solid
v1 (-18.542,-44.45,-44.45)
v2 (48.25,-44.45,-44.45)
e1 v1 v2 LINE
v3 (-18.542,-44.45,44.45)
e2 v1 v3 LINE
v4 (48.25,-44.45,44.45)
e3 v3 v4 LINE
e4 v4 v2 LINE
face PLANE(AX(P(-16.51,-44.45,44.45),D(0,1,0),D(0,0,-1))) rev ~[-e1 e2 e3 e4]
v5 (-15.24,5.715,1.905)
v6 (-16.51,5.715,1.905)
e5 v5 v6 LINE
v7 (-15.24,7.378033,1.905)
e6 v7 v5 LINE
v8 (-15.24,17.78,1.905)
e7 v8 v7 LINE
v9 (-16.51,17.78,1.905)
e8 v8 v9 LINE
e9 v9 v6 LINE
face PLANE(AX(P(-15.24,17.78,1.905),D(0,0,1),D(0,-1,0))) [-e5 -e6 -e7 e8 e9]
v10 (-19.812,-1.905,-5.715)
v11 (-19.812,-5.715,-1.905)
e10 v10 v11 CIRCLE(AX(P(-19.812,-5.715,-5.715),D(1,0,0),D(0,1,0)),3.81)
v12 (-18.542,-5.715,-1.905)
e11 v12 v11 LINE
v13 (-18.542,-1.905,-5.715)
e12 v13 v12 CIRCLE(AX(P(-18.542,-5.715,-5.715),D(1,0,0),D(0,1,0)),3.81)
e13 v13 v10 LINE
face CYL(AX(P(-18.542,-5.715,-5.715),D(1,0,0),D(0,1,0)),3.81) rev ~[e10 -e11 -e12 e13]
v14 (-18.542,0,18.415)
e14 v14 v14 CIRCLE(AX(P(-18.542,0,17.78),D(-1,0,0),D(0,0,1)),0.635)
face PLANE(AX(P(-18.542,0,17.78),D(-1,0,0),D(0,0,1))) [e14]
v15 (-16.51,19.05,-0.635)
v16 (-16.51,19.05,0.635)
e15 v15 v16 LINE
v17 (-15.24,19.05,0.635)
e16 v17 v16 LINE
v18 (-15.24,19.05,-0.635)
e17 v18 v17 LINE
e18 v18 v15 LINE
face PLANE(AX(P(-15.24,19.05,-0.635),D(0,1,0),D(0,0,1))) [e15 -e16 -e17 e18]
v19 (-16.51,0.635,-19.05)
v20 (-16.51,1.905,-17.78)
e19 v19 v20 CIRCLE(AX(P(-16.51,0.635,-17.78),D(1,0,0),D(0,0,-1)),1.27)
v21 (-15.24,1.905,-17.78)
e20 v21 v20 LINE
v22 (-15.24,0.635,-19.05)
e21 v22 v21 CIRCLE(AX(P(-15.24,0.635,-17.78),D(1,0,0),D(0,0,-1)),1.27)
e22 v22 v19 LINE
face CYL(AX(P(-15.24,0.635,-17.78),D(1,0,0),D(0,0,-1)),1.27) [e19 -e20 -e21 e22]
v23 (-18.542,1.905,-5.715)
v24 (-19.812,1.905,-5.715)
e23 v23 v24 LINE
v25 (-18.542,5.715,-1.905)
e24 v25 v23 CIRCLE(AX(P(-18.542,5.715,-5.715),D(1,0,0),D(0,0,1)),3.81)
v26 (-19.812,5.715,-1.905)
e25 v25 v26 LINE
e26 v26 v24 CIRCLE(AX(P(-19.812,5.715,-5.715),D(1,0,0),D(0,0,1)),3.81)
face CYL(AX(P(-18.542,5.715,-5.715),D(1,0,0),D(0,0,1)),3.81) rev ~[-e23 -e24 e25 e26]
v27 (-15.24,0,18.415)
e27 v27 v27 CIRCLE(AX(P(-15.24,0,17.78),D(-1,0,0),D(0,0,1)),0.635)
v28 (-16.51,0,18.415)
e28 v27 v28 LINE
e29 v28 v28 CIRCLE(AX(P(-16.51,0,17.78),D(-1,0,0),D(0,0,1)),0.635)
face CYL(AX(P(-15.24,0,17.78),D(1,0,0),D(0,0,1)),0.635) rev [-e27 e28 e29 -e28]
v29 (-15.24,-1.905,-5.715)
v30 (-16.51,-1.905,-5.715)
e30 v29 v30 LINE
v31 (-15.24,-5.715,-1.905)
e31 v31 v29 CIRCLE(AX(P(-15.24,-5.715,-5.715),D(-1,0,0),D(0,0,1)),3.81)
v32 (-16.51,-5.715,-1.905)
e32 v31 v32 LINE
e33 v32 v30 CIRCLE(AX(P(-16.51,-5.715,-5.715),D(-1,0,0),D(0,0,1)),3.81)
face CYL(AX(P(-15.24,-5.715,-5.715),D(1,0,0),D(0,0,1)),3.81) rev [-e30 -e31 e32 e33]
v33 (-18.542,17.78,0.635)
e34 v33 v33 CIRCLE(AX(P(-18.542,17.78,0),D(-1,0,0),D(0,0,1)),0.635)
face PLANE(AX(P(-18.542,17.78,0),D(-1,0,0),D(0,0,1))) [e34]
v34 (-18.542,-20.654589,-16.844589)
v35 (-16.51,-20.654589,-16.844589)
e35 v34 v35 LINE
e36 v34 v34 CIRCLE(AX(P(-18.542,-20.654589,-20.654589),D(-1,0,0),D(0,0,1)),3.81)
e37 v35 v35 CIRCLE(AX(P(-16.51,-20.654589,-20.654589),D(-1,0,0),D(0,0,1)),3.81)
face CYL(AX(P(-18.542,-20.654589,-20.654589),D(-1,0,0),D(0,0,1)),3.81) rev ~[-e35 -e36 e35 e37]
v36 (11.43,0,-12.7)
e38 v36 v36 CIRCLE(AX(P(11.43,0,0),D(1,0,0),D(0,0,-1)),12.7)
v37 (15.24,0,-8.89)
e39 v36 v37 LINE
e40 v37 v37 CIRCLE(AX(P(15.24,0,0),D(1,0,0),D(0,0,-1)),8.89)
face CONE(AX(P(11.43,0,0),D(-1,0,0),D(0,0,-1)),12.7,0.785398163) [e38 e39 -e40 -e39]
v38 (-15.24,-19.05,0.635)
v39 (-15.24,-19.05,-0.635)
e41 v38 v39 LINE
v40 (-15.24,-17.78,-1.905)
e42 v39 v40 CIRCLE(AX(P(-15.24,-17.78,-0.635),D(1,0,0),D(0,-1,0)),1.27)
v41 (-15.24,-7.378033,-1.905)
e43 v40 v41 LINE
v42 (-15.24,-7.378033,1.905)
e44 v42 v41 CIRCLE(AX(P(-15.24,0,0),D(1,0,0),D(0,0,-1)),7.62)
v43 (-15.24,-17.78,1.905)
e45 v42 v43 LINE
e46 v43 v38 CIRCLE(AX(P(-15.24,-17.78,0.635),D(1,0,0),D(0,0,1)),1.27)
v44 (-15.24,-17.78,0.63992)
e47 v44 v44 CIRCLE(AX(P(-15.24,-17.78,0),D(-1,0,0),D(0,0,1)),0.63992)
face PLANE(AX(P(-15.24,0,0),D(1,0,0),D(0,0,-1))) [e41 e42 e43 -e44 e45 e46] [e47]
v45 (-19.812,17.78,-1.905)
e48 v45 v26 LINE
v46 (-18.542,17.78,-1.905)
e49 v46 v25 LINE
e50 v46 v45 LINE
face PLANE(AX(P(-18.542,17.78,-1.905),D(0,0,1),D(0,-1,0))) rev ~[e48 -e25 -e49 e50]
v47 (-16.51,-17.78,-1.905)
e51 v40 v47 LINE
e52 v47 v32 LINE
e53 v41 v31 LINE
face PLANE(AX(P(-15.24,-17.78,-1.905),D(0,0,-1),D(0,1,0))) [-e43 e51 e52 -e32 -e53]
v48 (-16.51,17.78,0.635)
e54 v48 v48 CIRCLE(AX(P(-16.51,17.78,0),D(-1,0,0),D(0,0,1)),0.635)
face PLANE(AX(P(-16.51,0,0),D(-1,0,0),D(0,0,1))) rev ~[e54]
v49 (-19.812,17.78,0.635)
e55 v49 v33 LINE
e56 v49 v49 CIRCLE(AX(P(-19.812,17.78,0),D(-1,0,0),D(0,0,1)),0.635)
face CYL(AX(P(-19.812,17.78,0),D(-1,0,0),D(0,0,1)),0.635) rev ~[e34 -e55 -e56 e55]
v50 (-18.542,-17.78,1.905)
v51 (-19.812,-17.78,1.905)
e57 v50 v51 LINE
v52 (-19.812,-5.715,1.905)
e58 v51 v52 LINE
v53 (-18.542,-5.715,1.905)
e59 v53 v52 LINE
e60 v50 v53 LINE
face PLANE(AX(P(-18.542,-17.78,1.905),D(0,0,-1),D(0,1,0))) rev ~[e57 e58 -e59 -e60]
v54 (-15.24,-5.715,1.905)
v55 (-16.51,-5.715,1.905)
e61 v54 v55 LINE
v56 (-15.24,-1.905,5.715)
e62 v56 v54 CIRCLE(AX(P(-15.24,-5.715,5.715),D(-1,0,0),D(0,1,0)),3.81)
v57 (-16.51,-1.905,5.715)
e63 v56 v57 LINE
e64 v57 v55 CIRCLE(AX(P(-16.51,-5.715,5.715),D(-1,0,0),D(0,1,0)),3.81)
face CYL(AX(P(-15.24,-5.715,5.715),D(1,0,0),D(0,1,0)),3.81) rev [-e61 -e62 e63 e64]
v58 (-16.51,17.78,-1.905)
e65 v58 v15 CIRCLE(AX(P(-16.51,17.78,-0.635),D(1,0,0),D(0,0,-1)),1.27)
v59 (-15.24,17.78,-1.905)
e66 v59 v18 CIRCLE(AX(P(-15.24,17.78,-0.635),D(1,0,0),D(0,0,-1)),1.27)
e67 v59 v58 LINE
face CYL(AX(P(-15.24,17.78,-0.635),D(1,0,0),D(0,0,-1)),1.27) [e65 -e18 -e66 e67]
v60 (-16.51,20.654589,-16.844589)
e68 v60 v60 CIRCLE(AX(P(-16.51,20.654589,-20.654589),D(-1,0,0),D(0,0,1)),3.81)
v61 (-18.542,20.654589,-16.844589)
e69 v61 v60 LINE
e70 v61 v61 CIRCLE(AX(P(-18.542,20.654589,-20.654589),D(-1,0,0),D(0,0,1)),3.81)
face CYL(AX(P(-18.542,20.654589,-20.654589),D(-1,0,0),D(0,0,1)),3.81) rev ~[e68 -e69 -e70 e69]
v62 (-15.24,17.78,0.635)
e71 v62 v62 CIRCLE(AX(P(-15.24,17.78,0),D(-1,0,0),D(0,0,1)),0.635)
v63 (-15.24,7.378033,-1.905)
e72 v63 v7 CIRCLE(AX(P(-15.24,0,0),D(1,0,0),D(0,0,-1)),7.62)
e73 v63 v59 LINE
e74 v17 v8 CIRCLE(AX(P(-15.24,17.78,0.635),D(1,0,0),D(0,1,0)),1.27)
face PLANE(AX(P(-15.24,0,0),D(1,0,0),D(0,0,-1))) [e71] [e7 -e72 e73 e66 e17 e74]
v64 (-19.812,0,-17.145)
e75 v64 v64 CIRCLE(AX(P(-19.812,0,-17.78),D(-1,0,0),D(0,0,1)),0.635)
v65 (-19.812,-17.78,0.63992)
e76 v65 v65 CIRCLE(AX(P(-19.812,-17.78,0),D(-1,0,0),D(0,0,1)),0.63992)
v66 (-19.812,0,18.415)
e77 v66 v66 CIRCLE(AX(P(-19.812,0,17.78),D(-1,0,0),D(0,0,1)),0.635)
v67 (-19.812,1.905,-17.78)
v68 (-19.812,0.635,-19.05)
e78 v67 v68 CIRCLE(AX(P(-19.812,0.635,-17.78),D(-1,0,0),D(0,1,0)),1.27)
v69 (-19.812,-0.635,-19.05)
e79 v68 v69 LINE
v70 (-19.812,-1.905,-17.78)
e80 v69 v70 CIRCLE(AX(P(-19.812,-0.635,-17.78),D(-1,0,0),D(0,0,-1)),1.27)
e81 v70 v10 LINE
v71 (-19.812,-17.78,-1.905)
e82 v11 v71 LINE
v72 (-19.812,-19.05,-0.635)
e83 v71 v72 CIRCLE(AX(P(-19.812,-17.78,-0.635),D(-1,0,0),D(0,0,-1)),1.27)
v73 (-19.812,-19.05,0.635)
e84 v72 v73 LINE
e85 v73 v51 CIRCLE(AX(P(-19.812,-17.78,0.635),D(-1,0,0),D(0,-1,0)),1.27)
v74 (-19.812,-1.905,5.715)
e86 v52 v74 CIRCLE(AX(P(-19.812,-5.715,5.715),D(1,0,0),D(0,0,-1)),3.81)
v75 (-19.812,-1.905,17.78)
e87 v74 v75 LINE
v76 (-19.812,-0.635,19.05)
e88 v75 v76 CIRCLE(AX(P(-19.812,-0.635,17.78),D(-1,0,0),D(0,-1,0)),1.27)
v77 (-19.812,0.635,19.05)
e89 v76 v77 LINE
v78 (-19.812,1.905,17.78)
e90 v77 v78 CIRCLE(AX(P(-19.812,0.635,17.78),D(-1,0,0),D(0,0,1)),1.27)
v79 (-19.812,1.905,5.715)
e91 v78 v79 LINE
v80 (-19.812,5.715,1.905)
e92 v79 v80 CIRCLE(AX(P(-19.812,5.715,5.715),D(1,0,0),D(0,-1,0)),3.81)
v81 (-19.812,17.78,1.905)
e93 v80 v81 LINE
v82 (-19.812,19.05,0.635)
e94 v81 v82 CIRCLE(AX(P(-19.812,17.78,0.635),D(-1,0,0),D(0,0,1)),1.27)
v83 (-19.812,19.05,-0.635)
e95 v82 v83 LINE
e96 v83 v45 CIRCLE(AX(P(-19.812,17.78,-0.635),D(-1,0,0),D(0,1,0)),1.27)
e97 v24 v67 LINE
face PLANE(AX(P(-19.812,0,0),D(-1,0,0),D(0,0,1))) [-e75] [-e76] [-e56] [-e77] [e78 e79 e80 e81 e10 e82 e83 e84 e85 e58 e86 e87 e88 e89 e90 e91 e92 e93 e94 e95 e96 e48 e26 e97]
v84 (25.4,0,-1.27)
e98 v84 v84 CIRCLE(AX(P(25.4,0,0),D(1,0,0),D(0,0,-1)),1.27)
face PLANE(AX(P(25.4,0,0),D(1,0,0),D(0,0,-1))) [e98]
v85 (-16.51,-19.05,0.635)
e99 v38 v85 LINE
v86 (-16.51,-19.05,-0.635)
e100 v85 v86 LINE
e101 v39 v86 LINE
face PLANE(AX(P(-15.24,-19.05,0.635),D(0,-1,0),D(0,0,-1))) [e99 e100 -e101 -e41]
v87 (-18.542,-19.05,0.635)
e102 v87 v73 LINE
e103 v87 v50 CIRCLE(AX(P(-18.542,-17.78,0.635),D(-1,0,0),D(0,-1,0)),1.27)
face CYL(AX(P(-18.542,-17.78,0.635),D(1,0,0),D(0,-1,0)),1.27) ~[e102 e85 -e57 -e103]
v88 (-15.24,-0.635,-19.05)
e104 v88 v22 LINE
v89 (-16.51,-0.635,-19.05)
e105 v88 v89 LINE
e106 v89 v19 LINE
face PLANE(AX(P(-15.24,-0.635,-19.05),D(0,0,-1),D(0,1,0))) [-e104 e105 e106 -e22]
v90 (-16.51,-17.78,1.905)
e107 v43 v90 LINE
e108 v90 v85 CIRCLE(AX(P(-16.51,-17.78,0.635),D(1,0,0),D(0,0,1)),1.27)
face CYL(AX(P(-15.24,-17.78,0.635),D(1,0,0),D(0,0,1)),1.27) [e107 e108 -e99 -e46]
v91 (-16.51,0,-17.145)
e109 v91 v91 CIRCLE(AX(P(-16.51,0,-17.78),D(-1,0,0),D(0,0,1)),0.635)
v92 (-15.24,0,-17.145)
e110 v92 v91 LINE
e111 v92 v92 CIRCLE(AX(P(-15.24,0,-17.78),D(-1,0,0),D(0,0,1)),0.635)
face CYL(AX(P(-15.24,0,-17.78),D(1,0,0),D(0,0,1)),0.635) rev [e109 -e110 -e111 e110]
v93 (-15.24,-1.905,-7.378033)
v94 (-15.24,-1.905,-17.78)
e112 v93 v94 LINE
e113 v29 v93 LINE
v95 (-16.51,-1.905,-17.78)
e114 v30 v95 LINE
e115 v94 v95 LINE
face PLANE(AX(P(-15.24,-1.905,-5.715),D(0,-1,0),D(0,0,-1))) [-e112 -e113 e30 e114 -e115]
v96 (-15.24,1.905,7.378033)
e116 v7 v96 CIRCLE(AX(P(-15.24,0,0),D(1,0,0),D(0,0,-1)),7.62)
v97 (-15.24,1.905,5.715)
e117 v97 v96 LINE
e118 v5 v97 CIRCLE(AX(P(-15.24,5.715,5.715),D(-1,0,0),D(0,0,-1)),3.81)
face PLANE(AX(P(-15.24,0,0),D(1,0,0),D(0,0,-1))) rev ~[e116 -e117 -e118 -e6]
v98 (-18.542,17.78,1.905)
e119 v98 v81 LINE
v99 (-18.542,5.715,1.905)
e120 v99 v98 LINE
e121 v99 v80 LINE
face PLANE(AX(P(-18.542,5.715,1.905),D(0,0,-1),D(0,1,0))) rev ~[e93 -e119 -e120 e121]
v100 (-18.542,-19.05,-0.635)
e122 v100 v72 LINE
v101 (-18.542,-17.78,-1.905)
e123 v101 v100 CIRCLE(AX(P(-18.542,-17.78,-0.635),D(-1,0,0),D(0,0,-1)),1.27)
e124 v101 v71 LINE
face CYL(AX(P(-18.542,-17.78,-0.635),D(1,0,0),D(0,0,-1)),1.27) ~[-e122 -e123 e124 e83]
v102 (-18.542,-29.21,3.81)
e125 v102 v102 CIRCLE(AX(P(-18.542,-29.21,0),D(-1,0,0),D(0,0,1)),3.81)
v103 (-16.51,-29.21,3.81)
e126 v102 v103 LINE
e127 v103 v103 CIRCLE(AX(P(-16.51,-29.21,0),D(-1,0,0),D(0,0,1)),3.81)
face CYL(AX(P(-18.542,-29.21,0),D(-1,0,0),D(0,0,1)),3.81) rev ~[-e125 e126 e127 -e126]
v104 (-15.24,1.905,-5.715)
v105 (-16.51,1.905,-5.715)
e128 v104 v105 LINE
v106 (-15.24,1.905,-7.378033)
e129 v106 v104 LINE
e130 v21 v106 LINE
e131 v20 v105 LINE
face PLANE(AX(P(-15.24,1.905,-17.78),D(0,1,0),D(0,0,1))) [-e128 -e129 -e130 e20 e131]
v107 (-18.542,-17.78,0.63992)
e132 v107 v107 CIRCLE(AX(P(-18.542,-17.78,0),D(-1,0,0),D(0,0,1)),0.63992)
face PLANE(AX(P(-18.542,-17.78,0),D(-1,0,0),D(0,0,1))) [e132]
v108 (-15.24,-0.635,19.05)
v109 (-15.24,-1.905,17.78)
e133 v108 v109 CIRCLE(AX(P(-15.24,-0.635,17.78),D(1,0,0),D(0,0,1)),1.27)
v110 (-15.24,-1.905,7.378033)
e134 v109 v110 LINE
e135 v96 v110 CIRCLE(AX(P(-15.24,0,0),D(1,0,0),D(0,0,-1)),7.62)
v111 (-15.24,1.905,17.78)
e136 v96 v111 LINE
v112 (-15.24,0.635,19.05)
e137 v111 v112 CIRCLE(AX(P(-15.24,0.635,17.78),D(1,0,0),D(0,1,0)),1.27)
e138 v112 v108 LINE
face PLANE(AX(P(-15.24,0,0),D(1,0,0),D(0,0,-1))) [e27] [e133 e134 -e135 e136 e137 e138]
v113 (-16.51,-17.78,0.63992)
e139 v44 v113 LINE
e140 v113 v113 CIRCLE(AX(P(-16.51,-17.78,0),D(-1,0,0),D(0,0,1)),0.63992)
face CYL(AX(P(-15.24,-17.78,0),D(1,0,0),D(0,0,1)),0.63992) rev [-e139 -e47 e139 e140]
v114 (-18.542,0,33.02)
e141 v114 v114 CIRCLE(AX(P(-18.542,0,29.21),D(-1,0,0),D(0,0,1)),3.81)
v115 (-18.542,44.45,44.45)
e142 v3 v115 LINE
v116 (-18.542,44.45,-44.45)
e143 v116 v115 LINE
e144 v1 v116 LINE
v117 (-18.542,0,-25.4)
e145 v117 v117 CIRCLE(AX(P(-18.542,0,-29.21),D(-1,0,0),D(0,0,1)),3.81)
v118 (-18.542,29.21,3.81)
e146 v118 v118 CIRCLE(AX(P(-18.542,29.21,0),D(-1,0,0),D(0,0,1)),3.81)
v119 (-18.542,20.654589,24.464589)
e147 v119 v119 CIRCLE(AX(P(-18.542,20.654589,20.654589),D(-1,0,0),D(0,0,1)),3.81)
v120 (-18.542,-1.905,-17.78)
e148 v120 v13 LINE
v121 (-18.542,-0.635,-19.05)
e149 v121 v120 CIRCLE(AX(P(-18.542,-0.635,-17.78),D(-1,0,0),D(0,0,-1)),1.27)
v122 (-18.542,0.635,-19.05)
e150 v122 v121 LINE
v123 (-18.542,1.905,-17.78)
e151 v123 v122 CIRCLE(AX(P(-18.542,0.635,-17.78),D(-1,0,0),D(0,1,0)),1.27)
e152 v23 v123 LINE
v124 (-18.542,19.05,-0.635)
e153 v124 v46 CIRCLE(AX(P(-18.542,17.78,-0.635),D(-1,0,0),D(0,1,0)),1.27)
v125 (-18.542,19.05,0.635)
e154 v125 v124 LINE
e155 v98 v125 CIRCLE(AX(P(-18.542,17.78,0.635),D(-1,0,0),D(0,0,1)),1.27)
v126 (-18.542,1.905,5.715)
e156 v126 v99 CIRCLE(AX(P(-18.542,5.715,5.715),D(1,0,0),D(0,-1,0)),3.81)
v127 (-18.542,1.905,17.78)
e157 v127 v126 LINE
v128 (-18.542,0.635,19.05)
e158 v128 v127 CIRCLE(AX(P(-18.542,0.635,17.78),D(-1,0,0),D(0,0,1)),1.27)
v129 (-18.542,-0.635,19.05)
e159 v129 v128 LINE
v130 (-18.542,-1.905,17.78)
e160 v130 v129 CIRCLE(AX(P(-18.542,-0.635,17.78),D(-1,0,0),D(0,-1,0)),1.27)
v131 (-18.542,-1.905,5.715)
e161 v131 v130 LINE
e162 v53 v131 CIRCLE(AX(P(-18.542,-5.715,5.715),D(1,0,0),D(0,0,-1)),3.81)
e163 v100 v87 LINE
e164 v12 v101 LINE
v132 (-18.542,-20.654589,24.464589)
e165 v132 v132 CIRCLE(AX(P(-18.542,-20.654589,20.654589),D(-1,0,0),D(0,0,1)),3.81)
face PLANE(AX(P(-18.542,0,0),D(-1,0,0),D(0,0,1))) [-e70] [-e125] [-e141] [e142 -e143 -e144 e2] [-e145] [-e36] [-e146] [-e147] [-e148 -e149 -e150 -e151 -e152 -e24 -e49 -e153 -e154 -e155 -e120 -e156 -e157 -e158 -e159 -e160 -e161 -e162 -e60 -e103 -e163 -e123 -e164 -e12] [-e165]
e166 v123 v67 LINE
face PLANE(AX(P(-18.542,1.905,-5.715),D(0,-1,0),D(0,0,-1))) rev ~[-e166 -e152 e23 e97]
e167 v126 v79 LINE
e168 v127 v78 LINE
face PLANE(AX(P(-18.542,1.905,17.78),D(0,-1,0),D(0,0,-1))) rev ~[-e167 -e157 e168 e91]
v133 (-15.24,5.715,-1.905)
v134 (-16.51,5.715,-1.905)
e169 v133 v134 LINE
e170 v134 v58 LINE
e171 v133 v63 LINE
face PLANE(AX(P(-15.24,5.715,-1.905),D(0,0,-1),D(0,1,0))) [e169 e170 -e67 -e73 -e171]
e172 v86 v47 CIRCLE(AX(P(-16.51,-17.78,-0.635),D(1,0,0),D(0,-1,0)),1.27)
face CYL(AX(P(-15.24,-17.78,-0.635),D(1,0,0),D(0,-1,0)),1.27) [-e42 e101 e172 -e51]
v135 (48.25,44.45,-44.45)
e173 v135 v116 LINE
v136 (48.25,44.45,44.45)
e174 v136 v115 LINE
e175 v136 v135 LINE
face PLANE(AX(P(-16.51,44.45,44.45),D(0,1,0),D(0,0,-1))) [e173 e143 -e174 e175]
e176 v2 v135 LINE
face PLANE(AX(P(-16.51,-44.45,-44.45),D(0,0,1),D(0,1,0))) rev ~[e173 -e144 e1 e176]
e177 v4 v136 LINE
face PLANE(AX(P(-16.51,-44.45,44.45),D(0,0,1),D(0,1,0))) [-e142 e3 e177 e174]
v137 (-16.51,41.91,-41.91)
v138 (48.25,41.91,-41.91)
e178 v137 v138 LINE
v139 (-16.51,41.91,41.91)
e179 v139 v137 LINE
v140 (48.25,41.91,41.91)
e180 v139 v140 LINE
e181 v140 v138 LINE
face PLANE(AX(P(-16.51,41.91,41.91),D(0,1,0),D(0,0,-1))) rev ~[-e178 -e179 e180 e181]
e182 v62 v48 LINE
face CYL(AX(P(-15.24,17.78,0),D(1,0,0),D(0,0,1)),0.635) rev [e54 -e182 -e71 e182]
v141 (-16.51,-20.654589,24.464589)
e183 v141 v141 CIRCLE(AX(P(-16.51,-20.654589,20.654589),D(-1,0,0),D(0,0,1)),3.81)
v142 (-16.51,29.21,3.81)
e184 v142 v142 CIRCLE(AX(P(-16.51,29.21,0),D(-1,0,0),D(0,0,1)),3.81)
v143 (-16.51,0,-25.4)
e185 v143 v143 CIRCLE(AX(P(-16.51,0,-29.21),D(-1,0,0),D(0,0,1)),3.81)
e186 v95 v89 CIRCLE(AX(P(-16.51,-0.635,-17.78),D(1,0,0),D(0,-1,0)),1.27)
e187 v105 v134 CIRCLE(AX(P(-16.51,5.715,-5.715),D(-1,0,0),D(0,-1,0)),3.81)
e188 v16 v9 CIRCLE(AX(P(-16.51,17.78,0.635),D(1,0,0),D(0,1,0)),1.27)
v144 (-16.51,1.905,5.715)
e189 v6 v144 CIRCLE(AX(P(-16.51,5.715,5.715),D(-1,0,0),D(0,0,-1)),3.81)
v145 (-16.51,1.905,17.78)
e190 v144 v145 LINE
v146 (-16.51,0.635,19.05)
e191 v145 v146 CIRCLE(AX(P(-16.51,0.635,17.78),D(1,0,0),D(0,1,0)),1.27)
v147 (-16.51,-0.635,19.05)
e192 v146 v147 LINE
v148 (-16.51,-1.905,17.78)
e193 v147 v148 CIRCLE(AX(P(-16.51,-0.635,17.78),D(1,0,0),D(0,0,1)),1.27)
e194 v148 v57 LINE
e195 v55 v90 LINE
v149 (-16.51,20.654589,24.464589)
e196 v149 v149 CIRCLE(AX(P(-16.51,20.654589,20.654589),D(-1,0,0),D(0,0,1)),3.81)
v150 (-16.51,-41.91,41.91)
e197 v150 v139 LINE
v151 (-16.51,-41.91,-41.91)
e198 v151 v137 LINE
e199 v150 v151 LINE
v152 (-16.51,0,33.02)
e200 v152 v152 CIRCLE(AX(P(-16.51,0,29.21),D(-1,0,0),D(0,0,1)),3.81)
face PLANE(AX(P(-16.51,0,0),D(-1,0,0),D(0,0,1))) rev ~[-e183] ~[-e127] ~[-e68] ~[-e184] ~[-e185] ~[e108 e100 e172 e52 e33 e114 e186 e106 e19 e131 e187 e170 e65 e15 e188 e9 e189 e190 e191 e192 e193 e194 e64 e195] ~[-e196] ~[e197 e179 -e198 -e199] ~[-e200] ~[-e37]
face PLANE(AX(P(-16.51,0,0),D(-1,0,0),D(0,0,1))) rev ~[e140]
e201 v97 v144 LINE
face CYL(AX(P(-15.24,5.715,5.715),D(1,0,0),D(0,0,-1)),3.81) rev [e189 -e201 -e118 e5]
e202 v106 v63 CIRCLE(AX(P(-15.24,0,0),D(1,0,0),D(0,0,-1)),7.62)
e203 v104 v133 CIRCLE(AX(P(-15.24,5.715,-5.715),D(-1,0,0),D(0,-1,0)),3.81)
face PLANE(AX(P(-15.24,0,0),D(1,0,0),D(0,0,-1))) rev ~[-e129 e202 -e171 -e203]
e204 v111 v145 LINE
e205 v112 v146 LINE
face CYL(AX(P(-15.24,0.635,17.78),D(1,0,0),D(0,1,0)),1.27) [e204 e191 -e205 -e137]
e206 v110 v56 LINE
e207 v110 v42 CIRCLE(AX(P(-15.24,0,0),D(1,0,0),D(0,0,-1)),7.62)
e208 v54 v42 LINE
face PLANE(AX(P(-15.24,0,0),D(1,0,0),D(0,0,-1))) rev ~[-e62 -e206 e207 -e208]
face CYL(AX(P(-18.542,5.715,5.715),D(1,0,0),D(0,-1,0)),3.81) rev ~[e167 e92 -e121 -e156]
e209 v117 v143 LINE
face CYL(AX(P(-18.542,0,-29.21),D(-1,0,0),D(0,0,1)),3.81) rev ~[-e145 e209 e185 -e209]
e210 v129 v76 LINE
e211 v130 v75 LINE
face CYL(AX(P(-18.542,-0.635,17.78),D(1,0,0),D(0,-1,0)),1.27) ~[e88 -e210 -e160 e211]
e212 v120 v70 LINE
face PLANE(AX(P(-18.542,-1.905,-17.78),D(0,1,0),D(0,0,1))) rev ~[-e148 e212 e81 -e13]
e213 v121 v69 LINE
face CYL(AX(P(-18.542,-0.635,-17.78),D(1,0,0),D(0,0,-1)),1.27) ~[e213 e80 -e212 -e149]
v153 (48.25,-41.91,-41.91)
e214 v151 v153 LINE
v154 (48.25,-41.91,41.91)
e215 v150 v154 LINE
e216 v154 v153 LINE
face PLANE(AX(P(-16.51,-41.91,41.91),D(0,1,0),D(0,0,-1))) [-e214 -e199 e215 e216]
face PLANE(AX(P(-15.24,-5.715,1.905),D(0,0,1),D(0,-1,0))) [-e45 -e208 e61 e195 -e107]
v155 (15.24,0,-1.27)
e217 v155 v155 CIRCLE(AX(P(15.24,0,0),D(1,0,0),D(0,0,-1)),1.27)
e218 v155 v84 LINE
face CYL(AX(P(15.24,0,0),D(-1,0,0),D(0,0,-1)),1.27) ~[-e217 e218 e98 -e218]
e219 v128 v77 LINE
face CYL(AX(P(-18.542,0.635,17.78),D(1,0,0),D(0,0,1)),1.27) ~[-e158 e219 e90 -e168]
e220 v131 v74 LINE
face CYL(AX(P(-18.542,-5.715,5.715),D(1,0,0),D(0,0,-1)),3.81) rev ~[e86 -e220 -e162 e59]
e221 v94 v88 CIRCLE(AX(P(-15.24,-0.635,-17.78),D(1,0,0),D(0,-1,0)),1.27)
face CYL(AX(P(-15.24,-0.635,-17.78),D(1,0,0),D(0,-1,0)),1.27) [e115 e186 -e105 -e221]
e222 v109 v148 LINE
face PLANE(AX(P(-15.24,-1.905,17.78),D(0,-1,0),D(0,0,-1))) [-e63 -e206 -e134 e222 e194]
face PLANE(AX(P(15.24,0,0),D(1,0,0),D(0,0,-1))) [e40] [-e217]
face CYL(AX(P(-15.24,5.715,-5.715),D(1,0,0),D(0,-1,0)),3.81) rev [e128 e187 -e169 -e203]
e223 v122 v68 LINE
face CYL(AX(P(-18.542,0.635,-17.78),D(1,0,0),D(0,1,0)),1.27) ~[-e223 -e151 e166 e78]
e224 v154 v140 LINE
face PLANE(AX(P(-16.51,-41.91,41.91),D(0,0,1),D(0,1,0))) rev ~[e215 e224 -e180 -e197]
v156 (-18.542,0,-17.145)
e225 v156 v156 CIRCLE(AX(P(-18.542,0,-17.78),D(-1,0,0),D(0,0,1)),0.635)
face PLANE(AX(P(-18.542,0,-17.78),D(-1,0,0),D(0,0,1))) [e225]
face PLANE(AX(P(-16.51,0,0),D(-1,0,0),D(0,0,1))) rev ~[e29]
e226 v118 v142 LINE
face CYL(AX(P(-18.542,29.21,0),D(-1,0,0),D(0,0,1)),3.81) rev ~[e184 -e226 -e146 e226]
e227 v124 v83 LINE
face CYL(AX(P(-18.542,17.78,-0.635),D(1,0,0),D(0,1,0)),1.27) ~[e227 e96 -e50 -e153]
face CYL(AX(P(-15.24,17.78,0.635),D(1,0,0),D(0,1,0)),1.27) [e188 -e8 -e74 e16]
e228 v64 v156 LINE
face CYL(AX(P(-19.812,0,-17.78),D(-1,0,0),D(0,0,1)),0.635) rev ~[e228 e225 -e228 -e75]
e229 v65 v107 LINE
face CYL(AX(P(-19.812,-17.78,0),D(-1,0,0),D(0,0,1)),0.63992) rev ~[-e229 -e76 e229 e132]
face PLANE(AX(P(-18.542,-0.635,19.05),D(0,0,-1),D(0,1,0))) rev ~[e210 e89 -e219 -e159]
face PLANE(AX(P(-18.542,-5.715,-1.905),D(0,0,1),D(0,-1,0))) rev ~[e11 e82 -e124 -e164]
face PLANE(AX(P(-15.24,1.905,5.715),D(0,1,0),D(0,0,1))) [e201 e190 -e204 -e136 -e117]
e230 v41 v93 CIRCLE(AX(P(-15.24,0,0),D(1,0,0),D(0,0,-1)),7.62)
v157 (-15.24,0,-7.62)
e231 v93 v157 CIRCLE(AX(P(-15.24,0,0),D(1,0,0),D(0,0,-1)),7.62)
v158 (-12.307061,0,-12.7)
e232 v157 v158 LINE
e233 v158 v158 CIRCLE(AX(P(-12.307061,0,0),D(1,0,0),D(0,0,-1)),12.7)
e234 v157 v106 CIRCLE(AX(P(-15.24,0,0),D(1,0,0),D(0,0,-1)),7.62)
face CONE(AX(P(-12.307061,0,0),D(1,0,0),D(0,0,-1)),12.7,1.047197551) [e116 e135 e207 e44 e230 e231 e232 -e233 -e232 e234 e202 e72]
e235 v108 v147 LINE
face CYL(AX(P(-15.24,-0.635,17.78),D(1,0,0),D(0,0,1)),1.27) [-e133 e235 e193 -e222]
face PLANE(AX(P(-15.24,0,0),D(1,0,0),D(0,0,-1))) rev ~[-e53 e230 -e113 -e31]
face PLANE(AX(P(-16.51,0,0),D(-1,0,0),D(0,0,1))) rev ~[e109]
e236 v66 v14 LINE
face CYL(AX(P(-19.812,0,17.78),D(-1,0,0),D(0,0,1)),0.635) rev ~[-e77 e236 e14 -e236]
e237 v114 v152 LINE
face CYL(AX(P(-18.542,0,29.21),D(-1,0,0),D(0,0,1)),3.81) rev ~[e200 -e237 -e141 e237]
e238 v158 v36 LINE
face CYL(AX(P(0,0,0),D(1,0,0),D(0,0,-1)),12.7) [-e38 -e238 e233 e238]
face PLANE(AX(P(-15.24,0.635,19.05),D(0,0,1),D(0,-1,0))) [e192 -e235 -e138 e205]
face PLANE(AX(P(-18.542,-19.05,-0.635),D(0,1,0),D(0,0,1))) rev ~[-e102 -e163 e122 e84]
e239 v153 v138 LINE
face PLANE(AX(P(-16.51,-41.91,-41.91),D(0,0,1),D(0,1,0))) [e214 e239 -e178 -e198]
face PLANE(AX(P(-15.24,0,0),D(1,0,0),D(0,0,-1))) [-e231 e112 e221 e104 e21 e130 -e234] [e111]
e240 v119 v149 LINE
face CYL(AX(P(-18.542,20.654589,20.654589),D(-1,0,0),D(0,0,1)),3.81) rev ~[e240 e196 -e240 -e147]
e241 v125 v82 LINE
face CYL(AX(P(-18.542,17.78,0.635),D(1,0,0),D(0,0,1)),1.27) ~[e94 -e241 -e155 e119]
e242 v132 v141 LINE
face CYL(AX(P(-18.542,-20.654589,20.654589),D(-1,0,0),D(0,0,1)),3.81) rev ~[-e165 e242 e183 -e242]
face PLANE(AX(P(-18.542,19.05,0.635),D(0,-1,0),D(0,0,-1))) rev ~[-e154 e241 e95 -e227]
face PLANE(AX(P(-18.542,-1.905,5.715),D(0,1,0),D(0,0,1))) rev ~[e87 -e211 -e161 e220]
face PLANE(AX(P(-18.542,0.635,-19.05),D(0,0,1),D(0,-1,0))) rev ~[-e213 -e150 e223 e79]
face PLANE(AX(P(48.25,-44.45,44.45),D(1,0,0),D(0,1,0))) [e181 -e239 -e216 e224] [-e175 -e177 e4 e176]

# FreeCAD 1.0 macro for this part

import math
import FreeCAD as App
import Part
import Sketcher

V = App.Vector
Q = App.Units.Quantity


def edges_at(feature, points):
    """Names of the edges that pass closest to the given points."""
    edges = feature.Shape.Edges
    near = lambda p: min(range(len(edges)), key=lambda i: edges[i].distToShape(Part.Vertex(*p))[0])
    return sorted({f"Edge{near(p) + 1}" for p in points})

doc = App.newDocument("Part")
params = doc.addObject("Spreadsheet::Sheet", "Params")
for row, (alias, value) in enumerate([
    ("sketch1_diameter", "1 in"),
    ("pad1_length", "1.2 in"),
    ("chamfer_size", "0.15 in"),
    ("chamfer2_size", "0.2 in"),
    ("chamfer2_size2", "2.932939 mm"),
    ("sketch2_diameter", "0.1 in"),
    ("pad2_length", "0.4 in"),
    ("sketch3_diameter", "0.05 in"),
    ("sketch3_radius", "0.15 in"),
    ("sketch3_radius2", "0.05 in"),
    ("sketch3_width", "0.05 in"),
    ("pad3_length", "0.05 in"),
    ("sketch4_width", "3.5 in"),
    ("pad4_length", "0.08 in"),
    ("sketch5_diameter", "0.3 in"),
    ("sketch6_radius", "0.05 in"),
    ("sketch6_radius2", "0.15 in"),
    ("sketch6_width", "0.05 in"),
    ("pad5_length", "0.05 in"),
    ("sketch7_diameter", "0.05 in"),
    ("pocket2_length", "0.05 in"),
    ("sketch8_width", "3.5 in"),
    ("sketch8_width2", "3.3 in"),
    ("pad6_length", "80 mm"),
    ("sketch9_width", "0.6 in"),
    ("sketch9_height", "3.5 in"),
], start=1):
    params.set(f"A{row}", alias)
    params.set(f"B{row}", "=" + value)
    params.setAlias(f"B{row}", alias)

body = doc.addObject("PartDesign::Body", "Body")

sketch1 = body.newObject("Sketcher::SketchObject", "Sketch")
sketch1.AttachmentSupport = (doc.getObject("YZ_Plane"), [""])
sketch1.MapMode = "FlatFace"
sketch1.addGeometry(Part.Circle(V(0, 0, 0), V(0, 0, 1), 13), False)
sketch1.addConstraint([
    Sketcher.Constraint("Coincident", 0, 3, -1, 1),
    Sketcher.Constraint("Diameter", 0, Q("1 in")),
])
sketch1.setExpression("Constraints[1]", "Params.sketch1_diameter")
pad1 = body.newObject("PartDesign::Pad", "Pad")
pad1.Profile = sketch1
pad1.setExpression("Length", "Params.pad1_length")
pad1.Midplane = True
doc.recompute()

chamfer = body.newObject("PartDesign::Chamfer", "Chamfer")
chamfer.Base = (pad1, edges_at(pad1, [(15.24, 0, 12.7)]))
chamfer.setExpression("Size", "Params.chamfer_size")
doc.recompute()

chamfer2 = body.newObject("PartDesign::Chamfer", "Chamfer001")
chamfer2.Base = (chamfer, edges_at(chamfer, [(-15.24, 0, 12.7)]))
chamfer2.ChamferType = "Two distances"
chamfer2.setExpression("Size", "Params.chamfer2_size")
chamfer2.setExpression("Size2", "Params.chamfer2_size2")
chamfer2.FlipDirection = True

sketch2 = body.newObject("Sketcher::SketchObject", "Sketch001")
sketch2.AttachmentSupport = (doc.getObject("YZ_Plane"), [""])
sketch2.MapMode = "FlatFace"
sketch2.AttachmentOffset = App.Placement(V(0, 0, 0.6 * 25.4), App.Rotation())
sketch2.addGeometry(Part.Circle(V(0, 0, 0), V(0, 0, 1), 1.3), False)
sketch2.addConstraint([
    Sketcher.Constraint("Coincident", 0, 3, -1, 1),
    Sketcher.Constraint("Diameter", 0, Q("0.1 in")),
])
sketch2.setExpression("Constraints[1]", "Params.sketch2_diameter")
pad2 = body.newObject("PartDesign::Pad", "Pad001")
pad2.Profile = sketch2
pad2.setExpression("Length", "Params.pad2_length")

sketch3 = body.newObject("Sketcher::SketchObject", "Sketch002")
sketch3.AttachmentSupport = (doc.getObject("YZ_Plane"), [""])
sketch3.MapMode = "FlatFace"
sketch3.AttachmentOffset = App.Placement(V(0, 0, -0.6 * 25.4), App.Rotation())
sketch3.addGeometry([
    Part.LineSegment(V(-1.9, -17.8, 0), V(-1.9, -5.7, 0)),
    Part.ArcOfCircle(Part.Circle(V(-5.7, -5.7, 0), V(0, 0, 1), 3.8), math.radians(0), math.radians(90)),
    Part.LineSegment(V(-5.7, -1.9, 0), V(-17.8, -1.9, 0)),
    Part.ArcOfCircle(Part.Circle(V(-17.8, -0.6, 0), V(0, 0, 1), 1.3), math.radians(180), math.radians(270)),
    Part.LineSegment(V(-19.1, -0.6, 0), V(-19.1, 0.6, 0)),
    Part.ArcOfCircle(Part.Circle(V(-17.8, 0.6, 0), V(0, 0, 1), 1.3), math.radians(90), math.radians(180)),
    Part.LineSegment(V(-17.8, 1.9, 0), V(-5.7, 1.9, 0)),
    Part.ArcOfCircle(Part.Circle(V(-5.7, 5.7, 0), V(0, 0, 1), 3.8), math.radians(-90), math.radians(0)),
    Part.LineSegment(V(-1.9, 5.7, 0), V(-1.9, 17.8, 0)),
    Part.ArcOfCircle(Part.Circle(V(-0.6, 17.8, 0), V(0, 0, 1), 1.3), math.radians(90), math.radians(180)),
    Part.LineSegment(V(-0.6, 19.1, 0), V(0.6, 19.1, 0)),
    Part.ArcOfCircle(Part.Circle(V(0.6, 17.8, 0), V(0, 0, 1), 1.3), math.radians(0), math.radians(90)),
    Part.LineSegment(V(1.9, 17.8, 0), V(1.9, 5.7, 0)),
    Part.ArcOfCircle(Part.Circle(V(5.7, 5.7, 0), V(0, 0, 1), 3.8), math.radians(-180), math.radians(-90)),
    Part.LineSegment(V(5.7, 1.9, 0), V(17.8, 1.9, 0)),
    Part.ArcOfCircle(Part.Circle(V(17.8, 0.6, 0), V(0, 0, 1), 1.3), math.radians(0), math.radians(90)),
    Part.LineSegment(V(19.1, 0.6, 0), V(19.1, -0.6, 0)),
    Part.ArcOfCircle(Part.Circle(V(17.8, -0.6, 0), V(0, 0, 1), 1.3), math.radians(-90), math.radians(0)),
    Part.LineSegment(V(17.8, -1.9, 0), V(5.7, -1.9, 0)),
    Part.ArcOfCircle(Part.Circle(V(5.7, -5.7, 0), V(0, 0, 1), 3.8), math.radians(90), math.radians(180)),
    Part.LineSegment(V(1.9, -5.7, 0), V(1.9, -17.8, 0)),
    Part.ArcOfCircle(Part.Circle(V(0.6, -17.8, 0), V(0, 0, 1), 1.3), math.radians(-90), math.radians(0)),
    Part.LineSegment(V(0.6, -19.1, 0), V(-0.6, -19.1, 0)),
    Part.ArcOfCircle(Part.Circle(V(-0.6, -17.8, 0), V(0, 0, 1), 1.3), math.radians(180), math.radians(270)),
    Part.Circle(V(-17.8, 0, 0), V(0, 0, 1), 0.6),
    Part.Circle(V(0, 17.8, 0), V(0, 0, 1), 0.6),
    Part.Circle(V(0, -17.8, 0), V(0, 0, 1), 0.6),
    Part.Circle(V(17.8, 0, 0), V(0, 0, 1), 0.6),
], False)
sketch3.addConstraint([
    Sketcher.Constraint("Tangent", 0, 2, 1, 1),
    Sketcher.Constraint("Tangent", 1, 2, 2, 1),
    Sketcher.Constraint("Tangent", 2, 2, 3, 2),
    Sketcher.Constraint("Tangent", 3, 1, 4, 1),
    Sketcher.Constraint("Tangent", 4, 2, 5, 2),
    Sketcher.Constraint("Tangent", 5, 1, 6, 1),
    Sketcher.Constraint("Tangent", 6, 2, 7, 1),
    Sketcher.Constraint("Tangent", 7, 2, 8, 1),
    Sketcher.Constraint("Tangent", 8, 2, 9, 2),
    Sketcher.Constraint("Tangent", 9, 1, 10, 1),
    Sketcher.Constraint("Tangent", 10, 2, 11, 2),
    Sketcher.Constraint("Tangent", 11, 1, 12, 1),
    Sketcher.Constraint("Tangent", 12, 2, 13, 1),
    Sketcher.Constraint("Tangent", 13, 2, 14, 1),
    Sketcher.Constraint("Tangent", 14, 2, 15, 2),
    Sketcher.Constraint("Tangent", 15, 1, 16, 1),
    Sketcher.Constraint("Tangent", 16, 2, 17, 2),
    Sketcher.Constraint("Tangent", 17, 1, 18, 1),
    Sketcher.Constraint("Tangent", 18, 2, 19, 1),
    Sketcher.Constraint("Tangent", 19, 2, 20, 1),
    Sketcher.Constraint("Tangent", 20, 2, 21, 2),
    Sketcher.Constraint("Tangent", 21, 1, 22, 1),
    Sketcher.Constraint("Tangent", 22, 2, 23, 2),
    Sketcher.Constraint("Tangent", 23, 1, 0, 1),
    Sketcher.Constraint("Vertical", 0),
    Sketcher.Constraint("Horizontal", 2),
    Sketcher.Constraint("Vertical", 4),
    Sketcher.Constraint("Horizontal", 6),
    Sketcher.Constraint("Vertical", 8),
    Sketcher.Constraint("Horizontal", 10),
    Sketcher.Constraint("Vertical", 12),
    Sketcher.Constraint("Horizontal", 14),
    Sketcher.Constraint("Vertical", 16),
    Sketcher.Constraint("Horizontal", 18),
    Sketcher.Constraint("Vertical", 20),
    Sketcher.Constraint("Horizontal", 22),
    Sketcher.Constraint("Equal", 3, 5),
    Sketcher.Constraint("Equal", 1, 7),
    Sketcher.Constraint("Equal", 5, 9),
    Sketcher.Constraint("Equal", 9, 11),
    Sketcher.Constraint("Equal", 7, 13),
    Sketcher.Constraint("Equal", 11, 15),
    Sketcher.Constraint("Equal", 15, 17),
    Sketcher.Constraint("Equal", 13, 19),
    Sketcher.Constraint("Equal", 17, 21),
    Sketcher.Constraint("Equal", 21, 23),
    Sketcher.Constraint("Equal", 25, 26),
    Sketcher.Constraint("Equal", 26, 27),
    Sketcher.Constraint("Symmetric", 1, 3, 13, 3, -1, 1),
    Sketcher.Constraint("Symmetric", 5, 3, 17, 3, -1, 1),
    Sketcher.Constraint("Symmetric", 9, 3, 21, 3, -1, 1),
    Sketcher.Constraint("Symmetric", 25, 3, 26, 3, -1, 1),
    Sketcher.Constraint("Symmetric", 24, 3, 27, 3, -1, 1),
    Sketcher.Constraint("Symmetric", 7, 3, 13, 3, -2),
    Sketcher.Constraint("PointOnObject", 24, 3, -1),
    Sketcher.Constraint("PointOnObject", 25, 3, -2),
    Sketcher.Constraint("Horizontal", 11, 3, 25, 3),
    Sketcher.Constraint("Vertical", 5, 3, 24, 3),
    Sketcher.Constraint("Equal", 18, 0),
    Sketcher.Constraint("Equal", 22, 4),
    Sketcher.Constraint("Diameter", 25, Q("0.05 in")),
    Sketcher.Constraint("Radius", 1, Q("0.15 in")),
    Sketcher.Constraint("Radius", 3, Q("0.05 in")),
    Sketcher.Constraint("DistanceX", 10, 1, 10, 2, Q("0.05 in")),
    Sketcher.Constraint("DistanceX", 3, 3, -1, 1, Q("0.7 in")),
    Sketcher.Constraint("Diameter", 24, 1.279839),
])
sketch3.setExpression("Constraints[60]", "Params.sketch3_diameter")
sketch3.setExpression("Constraints[61]", "Params.sketch3_radius")
sketch3.setExpression("Constraints[62]", "Params.sketch3_radius2")
sketch3.setExpression("Constraints[63]", "Params.sketch3_width")
pad3 = body.newObject("PartDesign::Pad", "Pad002")
pad3.Profile = sketch3
pad3.setExpression("Length", "Params.pad3_length")
pad3.Reversed = True

sketch4 = body.newObject("Sketcher::SketchObject", "Sketch003")
sketch4.AttachmentSupport = (doc.getObject("YZ_Plane"), [""])
sketch4.MapMode = "FlatFace"
sketch4.AttachmentOffset = App.Placement(V(0, 0, -0.65 * 25.4), App.Rotation())
sketch4.addGeometry([
    Part.LineSegment(V(44, -44, 0), V(-44, -44, 0)),
    Part.LineSegment(V(-44, -44, 0), V(-44, 44, 0)),
    Part.LineSegment(V(-44, 44, 0), V(44, 44, 0)),
    Part.LineSegment(V(44, 44, 0), V(44, -44, 0)),
], False)
sketch4.addConstraint([
    Sketcher.Constraint("Coincident", 0, 2, 1, 1),
    Sketcher.Constraint("Coincident", 1, 2, 2, 1),
    Sketcher.Constraint("Coincident", 2, 2, 3, 1),
    Sketcher.Constraint("Coincident", 3, 2, 0, 1),
    Sketcher.Constraint("Horizontal", 0),
    Sketcher.Constraint("Vertical", 1),
    Sketcher.Constraint("Horizontal", 2),
    Sketcher.Constraint("Vertical", 3),
    Sketcher.Constraint("Symmetric", 0, 2, 2, 2, -1, 1),
    Sketcher.Constraint("Equal", 2, 1),
    Sketcher.Constraint("DistanceX", 0, 2, 0, 1, Q("3.5 in")),
])
sketch4.setExpression("Constraints[10]", "Params.sketch4_width")
pad4 = body.newObject("PartDesign::Pad", "Pad003")
pad4.Profile = sketch4
pad4.setExpression("Length", "Params.pad4_length")
pad4.Reversed = True

sketch5 = body.newObject("Sketcher::SketchObject", "Sketch004")
sketch5.AttachmentSupport = (doc.getObject("YZ_Plane"), [""])
sketch5.MapMode = "FlatFace"
sketch5.AttachmentOffset = App.Placement(V(0, 0, -0.73 * 25.4), App.Rotation())
sketch5.addGeometry([
    Part.Circle(V(29.2, 0, 0), V(0, 0, 1), 3.8),
    Part.Circle(V(20.7, 20.7, 0), V(0, 0, 1), 3.8),
    Part.Circle(V(0, 29.2, 0), V(0, 0, 1), 3.8),
    Part.Circle(V(-20.7, 20.7, 0), V(0, 0, 1), 3.8),
    Part.Circle(V(-29.2, 0, 0), V(0, 0, 1), 3.8),
    Part.Circle(V(-20.7, -20.7, 0), V(0, 0, 1), 3.8),
    Part.Circle(V(0, -29.2, 0), V(0, 0, 1), 3.8),
    Part.Circle(V(20.7, -20.7, 0), V(0, 0, 1), 3.8),
], False)
sketch5.addConstraint([
    Sketcher.Constraint("Equal", 0, 1),
    Sketcher.Constraint("Equal", 1, 2),
    Sketcher.Constraint("Equal", 2, 3),
    Sketcher.Constraint("Equal", 3, 4),
    Sketcher.Constraint("Equal", 4, 5),
    Sketcher.Constraint("Equal", 5, 6),
    Sketcher.Constraint("Equal", 6, 7),
    Sketcher.Constraint("Symmetric", 0, 3, 4, 3, -1, 1),
    Sketcher.Constraint("Symmetric", 1, 3, 5, 3, -1, 1),
    Sketcher.Constraint("Symmetric", 2, 3, 6, 3, -1, 1),
    Sketcher.Constraint("Symmetric", 3, 3, 7, 3, -1, 1),
    Sketcher.Constraint("Symmetric", 1, 3, 3, 3, -2),
    Sketcher.Constraint("PointOnObject", 0, 3, -1),
    Sketcher.Constraint("PointOnObject", 2, 3, -2),
    Sketcher.Constraint("Diameter", 0, Q("0.3 in")),
    Sketcher.Constraint("DistanceX", 4, 3, 0, 3, Q("2.3 in")),
    Sketcher.Constraint("DistanceY", -1, 1, 2, 3, Q("1.15 in")),
    Sketcher.Constraint("DistanceX", -1, 1, 1, 3, 20.654589),
    Sketcher.Constraint("DistanceY", -1, 1, 1, 3, 20.654589),
])
sketch5.setExpression("Constraints[14]", "Params.sketch5_diameter")
pocket1 = body.newObject("PartDesign::Pocket", "Pocket")
pocket1.Profile = sketch5
pocket1.Type = "ThroughAll"
pocket1.Reversed = True

sketch6 = body.newObject("Sketcher::SketchObject", "Sketch005")
sketch6.AttachmentSupport = (doc.getObject("YZ_Plane"), [""])
sketch6.MapMode = "FlatFace"
sketch6.AttachmentOffset = App.Placement(V(0, 0, -0.73 * 25.4), App.Rotation())
sketch6.addGeometry([
    Part.LineSegment(V(5.7, 1.9, 0), V(17.8, 1.9, 0)),
    Part.ArcOfCircle(Part.Circle(V(17.8, 0.6, 0), V(0, 0, 1), 1.3), math.radians(0), math.radians(90)),
    Part.LineSegment(V(19.1, 0.6, 0), V(19.1, -0.6, 0)),
    Part.ArcOfCircle(Part.Circle(V(17.8, -0.6, 0), V(0, 0, 1), 1.3), math.radians(-90), math.radians(0)),
    Part.LineSegment(V(17.8, -1.9, 0), V(5.7, -1.9, 0)),
    Part.ArcOfCircle(Part.Circle(V(5.7, -5.7, 0), V(0, 0, 1), 3.8), math.radians(90), math.radians(180)),
    Part.LineSegment(V(1.9, -5.7, 0), V(1.9, -17.8, 0)),
    Part.ArcOfCircle(Part.Circle(V(0.6, -17.8, 0), V(0, 0, 1), 1.3), math.radians(-90), math.radians(0)),
    Part.LineSegment(V(0.6, -19.1, 0), V(-0.6, -19.1, 0)),
    Part.ArcOfCircle(Part.Circle(V(-0.6, -17.8, 0), V(0, 0, 1), 1.3), math.radians(180), math.radians(270)),
    Part.LineSegment(V(-1.9, -17.8, 0), V(-1.9, -5.7, 0)),
    Part.ArcOfCircle(Part.Circle(V(-5.7, -5.7, 0), V(0, 0, 1), 3.8), math.radians(0), math.radians(90)),
    Part.LineSegment(V(-5.7, -1.9, 0), V(-17.8, -1.9, 0)),
    Part.ArcOfCircle(Part.Circle(V(-17.8, -0.6, 0), V(0, 0, 1), 1.3), math.radians(180), math.radians(270)),
    Part.LineSegment(V(-19.1, -0.6, 0), V(-19.1, 0.6, 0)),
    Part.ArcOfCircle(Part.Circle(V(-17.8, 0.6, 0), V(0, 0, 1), 1.3), math.radians(90), math.radians(180)),
    Part.LineSegment(V(-17.8, 1.9, 0), V(-5.7, 1.9, 0)),
    Part.ArcOfCircle(Part.Circle(V(-5.7, 5.7, 0), V(0, 0, 1), 3.8), math.radians(-90), math.radians(0)),
    Part.LineSegment(V(-1.9, 5.7, 0), V(-1.9, 17.8, 0)),
    Part.ArcOfCircle(Part.Circle(V(-0.6, 17.8, 0), V(0, 0, 1), 1.3), math.radians(90), math.radians(180)),
    Part.LineSegment(V(-0.6, 19.1, 0), V(0.6, 19.1, 0)),
    Part.ArcOfCircle(Part.Circle(V(0.6, 17.8, 0), V(0, 0, 1), 1.3), math.radians(0), math.radians(90)),
    Part.LineSegment(V(1.9, 17.8, 0), V(1.9, 5.7, 0)),
    Part.ArcOfCircle(Part.Circle(V(5.7, 5.7, 0), V(0, 0, 1), 3.8), math.radians(-180), math.radians(-90)),
], False)
sketch6.addConstraint([
    Sketcher.Constraint("Tangent", 0, 2, 1, 2),
    Sketcher.Constraint("Tangent", 1, 1, 2, 1),
    Sketcher.Constraint("Tangent", 2, 2, 3, 2),
    Sketcher.Constraint("Tangent", 3, 1, 4, 1),
    Sketcher.Constraint("Tangent", 4, 2, 5, 1),
    Sketcher.Constraint("Tangent", 5, 2, 6, 1),
    Sketcher.Constraint("Tangent", 6, 2, 7, 2),
    Sketcher.Constraint("Tangent", 7, 1, 8, 1),
    Sketcher.Constraint("Tangent", 8, 2, 9, 2),
    Sketcher.Constraint("Tangent", 9, 1, 10, 1),
    Sketcher.Constraint("Tangent", 10, 2, 11, 1),
    Sketcher.Constraint("Tangent", 11, 2, 12, 1),
    Sketcher.Constraint("Tangent", 12, 2, 13, 2),
    Sketcher.Constraint("Tangent", 13, 1, 14, 1),
    Sketcher.Constraint("Tangent", 14, 2, 15, 2),
    Sketcher.Constraint("Tangent", 15, 1, 16, 1),
    Sketcher.Constraint("Tangent", 16, 2, 17, 1),
    Sketcher.Constraint("Tangent", 17, 2, 18, 1),
    Sketcher.Constraint("Tangent", 18, 2, 19, 2),
    Sketcher.Constraint("Tangent", 19, 1, 20, 1),
    Sketcher.Constraint("Tangent", 20, 2, 21, 2),
    Sketcher.Constraint("Tangent", 21, 1, 22, 1),
    Sketcher.Constraint("Tangent", 22, 2, 23, 1),
    Sketcher.Constraint("Tangent", 23, 2, 0, 1),
    Sketcher.Constraint("Horizontal", 0),
    Sketcher.Constraint("Vertical", 2),
    Sketcher.Constraint("Horizontal", 4),
    Sketcher.Constraint("Vertical", 6),
    Sketcher.Constraint("Horizontal", 8),
    Sketcher.Constraint("Vertical", 10),
    Sketcher.Constraint("Horizontal", 12),
    Sketcher.Constraint("Vertical", 14),
    Sketcher.Constraint("Horizontal", 16),
    Sketcher.Constraint("Vertical", 18),
    Sketcher.Constraint("Horizontal", 20),
    Sketcher.Constraint("Vertical", 22),
    Sketcher.Constraint("Equal", 1, 3),
    Sketcher.Constraint("Equal", 3, 7),
    Sketcher.Constraint("Equal", 7, 9),
    Sketcher.Constraint("Equal", 5, 11),
    Sketcher.Constraint("Equal", 9, 13),
    Sketcher.Constraint("Equal", 13, 15),
    Sketcher.Constraint("Equal", 11, 17),
    Sketcher.Constraint("Equal", 15, 19),
    Sketcher.Constraint("Equal", 19, 21),
    Sketcher.Constraint("Equal", 17, 23),
    Sketcher.Constraint("Symmetric", 1, 3, 13, 3, -1, 1),
    Sketcher.Constraint("Symmetric", 5, 3, 17, 3, -1, 1),
    Sketcher.Constraint("Symmetric", 9, 3, 21, 3, -1, 1),
    Sketcher.Constraint("Symmetric", 5, 3, 11, 3, -2),
    Sketcher.Constraint("Equal", 20, 2),
    Sketcher.Constraint("Equal", 16, 6),
    Sketcher.Constraint("Radius", 1, Q("0.05 in")),
    Sketcher.Constraint("Radius", 5, Q("0.15 in")),
    Sketcher.Constraint("DistanceX", 8, 2, 8, 1, Q("0.05 in")),
    Sketcher.Constraint("DistanceX", -1, 1, 1, 3, Q("0.7 in")),
])
sketch6.setExpression("Constraints[52]", "Params.sketch6_radius")
sketch6.setExpression("Constraints[53]", "Params.sketch6_radius2")
sketch6.setExpression("Constraints[54]", "Params.sketch6_width")
pad5 = body.newObject("PartDesign::Pad", "Pad004")
pad5.Profile = sketch6
pad5.setExpression("Length", "Params.pad5_length")
pad5.Reversed = True

sketch7 = body.newObject("Sketcher::SketchObject", "Sketch006")
sketch7.AttachmentSupport = (doc.getObject("YZ_Plane"), [""])
sketch7.MapMode = "FlatFace"
sketch7.AttachmentOffset = App.Placement(V(0, 0, -0.78 * 25.4), App.Rotation())
sketch7.addGeometry([
    Part.Circle(V(17.8, 0, 0), V(0, 0, 1), 0.6),
    Part.Circle(V(0, 17.8, 0), V(0, 0, 1), 0.6),
    Part.Circle(V(-17.8, 0, 0), V(0, 0, 1), 0.6),
    Part.Circle(V(0, -17.8, 0), V(0, 0, 1), 0.6),
], False)
sketch7.addConstraint([
    Sketcher.Constraint("Equal", 0, 1),
    Sketcher.Constraint("Equal", 1, 3),
    Sketcher.Constraint("Symmetric", 0, 3, 2, 3, -1, 1),
    Sketcher.Constraint("Symmetric", 1, 3, 3, 3, -1, 1),
    Sketcher.Constraint("PointOnObject", 0, 3, -1),
    Sketcher.Constraint("PointOnObject", 1, 3, -2),
    Sketcher.Constraint("Diameter", 0, Q("0.05 in")),
    Sketcher.Constraint("DistanceX", -1, 1, 0, 3, Q("0.7 in")),
    Sketcher.Constraint("DistanceY", -1, 1, 1, 3, Q("0.7 in")),
    Sketcher.Constraint("Diameter", 2, 1.279839),
])
sketch7.setExpression("Constraints[6]", "Params.sketch7_diameter")
pocket2 = body.newObject("PartDesign::Pocket", "Pocket001")
pocket2.Profile = sketch7
pocket2.setExpression("Length", "Params.pocket2_length")
pocket2.Reversed = True

sketch8 = body.newObject("Sketcher::SketchObject", "Sketch007")
sketch8.AttachmentSupport = (doc.getObject("YZ_Plane"), [""])
sketch8.MapMode = "FlatFace"
sketch8.AttachmentOffset = App.Placement(V(0, 0, -0.65 * 25.4), App.Rotation())
sketch8.addGeometry([
    Part.LineSegment(V(44, 44, 0), V(-44, 44, 0)),
    Part.LineSegment(V(-44, 44, 0), V(-44, -44, 0)),
    Part.LineSegment(V(-44, -44, 0), V(44, -44, 0)),
    Part.LineSegment(V(44, -44, 0), V(44, 44, 0)),
    Part.LineSegment(V(-42, -42, 0), V(-42, 42, 0)),
    Part.LineSegment(V(-42, 42, 0), V(42, 42, 0)),
    Part.LineSegment(V(42, 42, 0), V(42, -42, 0)),
    Part.LineSegment(V(42, -42, 0), V(-42, -42, 0)),
], False)
sketch8.addConstraint([
    Sketcher.Constraint("Coincident", 0, 2, 1, 1),
    Sketcher.Constraint("Coincident", 1, 2, 2, 1),
    Sketcher.Constraint("Coincident", 2, 2, 3, 1),
    Sketcher.Constraint("Coincident", 3, 2, 0, 1),
    Sketcher.Constraint("Coincident", 4, 2, 5, 1),
    Sketcher.Constraint("Coincident", 5, 2, 6, 1),
    Sketcher.Constraint("Coincident", 6, 2, 7, 1),
    Sketcher.Constraint("Coincident", 7, 2, 4, 1),
    Sketcher.Constraint("Horizontal", 0),
    Sketcher.Constraint("Vertical", 1),
    Sketcher.Constraint("Horizontal", 2),
    Sketcher.Constraint("Vertical", 3),
    Sketcher.Constraint("Vertical", 4),
    Sketcher.Constraint("Horizontal", 5),
    Sketcher.Constraint("Vertical", 6),
    Sketcher.Constraint("Horizontal", 7),
    Sketcher.Constraint("Symmetric", 0, 2, 2, 2, -1, 1),
    Sketcher.Constraint("Symmetric", 4, 2, 6, 2, -1, 1),
    Sketcher.Constraint("Equal", 2, 1),
    Sketcher.Constraint("Equal", 7, 4),
    Sketcher.Constraint("DistanceX", 0, 2, 0, 1, Q("3.5 in")),
    Sketcher.Constraint("DistanceX", 5, 1, 5, 2, Q("3.3 in")),
])
sketch8.setExpression("Constraints[20]", "Params.sketch8_width")
sketch8.setExpression("Constraints[21]", "Params.sketch8_width2")
pad6 = body.newObject("PartDesign::Pad", "Pad005")
pad6.Profile = sketch8
pad6.setExpression("Length", "Params.pad6_length")

sketch9 = body.newObject("Sketcher::SketchObject", "Sketch008")
sketch9.AttachmentSupport = (doc.getObject("XY_Plane"), [""])
sketch9.MapMode = "FlatFace"
sketch9.AttachmentOffset = App.Placement(V(0, 0, 1.75 * 25.4), App.Rotation())
sketch9.addGeometry([
    Part.LineSegment(V(48, 44, 0), V(48, -44, 0)),
    Part.LineSegment(V(48, -44, 0), V(63, -44, 0)),
    Part.LineSegment(V(63, -44, 0), V(63, 44, 0)),
    Part.LineSegment(V(63, 44, 0), V(48, 44, 0)),
], False)
sketch9.addConstraint([
    Sketcher.Constraint("Coincident", 0, 2, 1, 1),
    Sketcher.Constraint("Coincident", 1, 2, 2, 1),
    Sketcher.Constraint("Coincident", 2, 2, 3, 1),
    Sketcher.Constraint("Coincident", 3, 2, 0, 1),
    Sketcher.Constraint("Vertical", 0),
    Sketcher.Constraint("Horizontal", 1),
    Sketcher.Constraint("Vertical", 2),
    Sketcher.Constraint("Horizontal", 3),
    Sketcher.Constraint("DistanceX", 1, 1, 1, 2, Q("0.6 in")),
    Sketcher.Constraint("DistanceY", 0, 2, 0, 1, Q("3.5 in")),
    Sketcher.Constraint("DistanceY", 0, 2, -1, 1, Q("1.75 in")),
    Sketcher.Constraint("DistanceX", -1, 1, 0, 2, 48.25),
])
sketch9.setExpression("Constraints[8]", "Params.sketch9_width")
sketch9.setExpression("Constraints[9]", "Params.sketch9_height")
pocket3 = body.newObject("PartDesign::Pocket", "Pocket002")
pocket3.Profile = sketch9
pocket3.Type = "ThroughAll"

doc.recompute()
